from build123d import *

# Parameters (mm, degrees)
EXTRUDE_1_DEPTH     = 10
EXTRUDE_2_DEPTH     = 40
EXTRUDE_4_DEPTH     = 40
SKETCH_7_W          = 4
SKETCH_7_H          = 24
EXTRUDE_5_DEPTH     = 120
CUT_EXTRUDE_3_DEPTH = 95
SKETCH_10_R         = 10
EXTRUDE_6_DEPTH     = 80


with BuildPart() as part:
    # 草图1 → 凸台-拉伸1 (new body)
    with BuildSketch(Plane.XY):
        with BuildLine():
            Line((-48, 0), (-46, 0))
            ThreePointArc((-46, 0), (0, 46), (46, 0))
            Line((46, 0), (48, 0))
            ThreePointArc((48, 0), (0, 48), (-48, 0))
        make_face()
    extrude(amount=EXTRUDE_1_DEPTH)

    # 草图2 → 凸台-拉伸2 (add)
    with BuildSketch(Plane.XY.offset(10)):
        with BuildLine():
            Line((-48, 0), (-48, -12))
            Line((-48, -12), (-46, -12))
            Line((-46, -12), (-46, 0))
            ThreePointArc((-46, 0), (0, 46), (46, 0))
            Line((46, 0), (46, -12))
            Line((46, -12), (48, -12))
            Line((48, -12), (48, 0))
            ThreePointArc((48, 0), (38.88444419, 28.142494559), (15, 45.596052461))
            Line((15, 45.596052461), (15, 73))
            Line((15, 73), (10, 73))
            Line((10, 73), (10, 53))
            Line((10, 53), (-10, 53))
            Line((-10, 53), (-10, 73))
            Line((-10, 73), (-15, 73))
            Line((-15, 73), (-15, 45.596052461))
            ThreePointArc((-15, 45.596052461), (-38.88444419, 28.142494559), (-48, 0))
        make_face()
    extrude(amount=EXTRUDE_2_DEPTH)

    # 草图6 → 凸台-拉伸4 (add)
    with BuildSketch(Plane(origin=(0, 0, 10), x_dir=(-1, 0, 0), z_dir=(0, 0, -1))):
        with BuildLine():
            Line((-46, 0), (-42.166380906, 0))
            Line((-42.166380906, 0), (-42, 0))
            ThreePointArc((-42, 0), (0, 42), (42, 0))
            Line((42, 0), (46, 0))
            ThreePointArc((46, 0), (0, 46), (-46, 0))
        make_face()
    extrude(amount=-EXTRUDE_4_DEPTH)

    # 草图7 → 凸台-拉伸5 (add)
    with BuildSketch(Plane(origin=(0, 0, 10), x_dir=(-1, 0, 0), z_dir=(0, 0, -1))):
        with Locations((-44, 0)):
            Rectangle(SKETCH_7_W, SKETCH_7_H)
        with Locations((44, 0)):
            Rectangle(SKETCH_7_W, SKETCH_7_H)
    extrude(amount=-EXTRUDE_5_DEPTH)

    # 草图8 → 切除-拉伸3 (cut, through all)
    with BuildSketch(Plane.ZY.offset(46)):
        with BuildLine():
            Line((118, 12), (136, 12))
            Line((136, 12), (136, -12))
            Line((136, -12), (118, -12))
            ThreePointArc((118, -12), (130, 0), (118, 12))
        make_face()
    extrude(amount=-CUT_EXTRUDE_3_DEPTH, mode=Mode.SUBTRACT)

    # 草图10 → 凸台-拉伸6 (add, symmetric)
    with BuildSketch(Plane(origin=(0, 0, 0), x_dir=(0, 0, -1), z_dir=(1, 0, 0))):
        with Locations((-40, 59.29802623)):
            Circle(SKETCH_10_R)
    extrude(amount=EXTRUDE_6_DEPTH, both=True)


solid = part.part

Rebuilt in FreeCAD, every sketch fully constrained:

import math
import FreeCAD as App
import Part
import Sketcher

doc = App.newDocument("Part")
body = doc.addObject("PartDesign::Body", "Body")

sketch1 = body.newObject("Sketcher::SketchObject", "Sketch")
sketch1.AttachmentSupport = (doc.getObject("XY_Plane"), [""])
sketch1.MapMode = "FlatFace"
sketch1.addGeometry([
    Part.LineSegment(App.Vector(-48, 0, 0), App.Vector(-46, 0, 0)),
    Part.ArcOfCircle(Part.Circle(App.Vector(0, 0, 0), App.Vector(0, 0, 1), 46), math.radians(0), math.radians(180)),
    Part.LineSegment(App.Vector(46, 0, 0), App.Vector(48, 0, 0)),
    Part.ArcOfCircle(Part.Circle(App.Vector(0, 0, 0), App.Vector(0, 0, 1), 48), math.radians(0), math.radians(180)),
], False)
sketch1.addConstraint([
    Sketcher.Constraint("Coincident", 0, 2, 1, 2),
    Sketcher.Constraint("Coincident", 1, 1, 2, 1),
    Sketcher.Constraint("Coincident", 2, 2, 3, 1),
    Sketcher.Constraint("Coincident", 3, 2, 0, 1),
    Sketcher.Constraint("Horizontal", 0),
    Sketcher.Constraint("Horizontal", 2),
    Sketcher.Constraint("Coincident", 1, 3, -1, 1),
    Sketcher.Constraint("Coincident", 3, 3, -1, 1),
    Sketcher.Constraint("PointOnObject", 0, 2, -1),
    Sketcher.Constraint("PointOnObject", 1, 1, -1),
    Sketcher.Constraint("Radius", 1, 46.0),
    Sketcher.Constraint("Radius", 3, 48.0),
])
pad1 = body.newObject("PartDesign::Pad", "Pad")
pad1.Profile = sketch1
pad1.Length = 10

sketch2 = body.newObject("Sketcher::SketchObject", "Sketch001")
sketch2.AttachmentSupport = (doc.getObject("XY_Plane"), [""])
sketch2.MapMode = "FlatFace"
sketch2.AttachmentOffset = App.Placement(App.Vector(0, 0, 10), App.Rotation())
sketch2.addGeometry([
    Part.LineSegment(App.Vector(-48, 0, 0), App.Vector(-48, -12, 0)),
    Part.LineSegment(App.Vector(-48, -12, 0), App.Vector(-46, -12, 0)),
    Part.LineSegment(App.Vector(-46, -12, 0), App.Vector(-46, 0, 0)),
    Part.ArcOfCircle(Part.Circle(App.Vector(0, 0, 0), App.Vector(0, 0, 1), 46), math.radians(0), math.radians(180)),
    Part.LineSegment(App.Vector(46, 0, 0), App.Vector(46, -12, 0)),
    Part.LineSegment(App.Vector(46, -12, 0), App.Vector(48, -12, 0)),
    Part.LineSegment(App.Vector(48, -12, 0), App.Vector(48, 0, 0)),
    Part.ArcOfCircle(Part.Circle(App.Vector(0, 0, 0), App.Vector(0, 0, 1), 48), math.radians(0), math.radians(72)),
    Part.LineSegment(App.Vector(15, 45.6, 0), App.Vector(15, 73, 0)),
    Part.LineSegment(App.Vector(15, 73, 0), App.Vector(10, 73, 0)),
    Part.LineSegment(App.Vector(10, 73, 0), App.Vector(10, 53, 0)),
    Part.LineSegment(App.Vector(10, 53, 0), App.Vector(-10, 53, 0)),
    Part.LineSegment(App.Vector(-10, 53, 0), App.Vector(-10, 73, 0)),
    Part.LineSegment(App.Vector(-10, 73, 0), App.Vector(-15, 73, 0)),
    Part.LineSegment(App.Vector(-15, 73, 0), App.Vector(-15, 45.6, 0)),
    Part.ArcOfCircle(Part.Circle(App.Vector(0, 0, 0), App.Vector(0, 0, 1), 48), math.radians(108), math.radians(180)),
], False)
sketch2.addConstraint([
    Sketcher.Constraint("Coincident", 0, 2, 1, 1),
    Sketcher.Constraint("Coincident", 1, 2, 2, 1),
    Sketcher.Constraint("Tangent", 2, 2, 3, 2),
    Sketcher.Constraint("Tangent", 3, 1, 4, 1),
    Sketcher.Constraint("Coincident", 4, 2, 5, 1),
    Sketcher.Constraint("Coincident", 5, 2, 6, 1),
    Sketcher.Constraint("Tangent", 6, 2, 7, 1),
    Sketcher.Constraint("Coincident", 7, 2, 8, 1),
    Sketcher.Constraint("Coincident", 8, 2, 9, 1),
    Sketcher.Constraint("Coincident", 9, 2, 10, 1),
    Sketcher.Constraint("Coincident", 10, 2, 11, 1),
    Sketcher.Constraint("Coincident", 11, 2, 12, 1),
    Sketcher.Constraint("Coincident", 12, 2, 13, 1),
    Sketcher.Constraint("Coincident", 13, 2, 14, 1),
    Sketcher.Constraint("Coincident", 14, 2, 15, 1),
    Sketcher.Constraint("Tangent", 15, 2, 0, 1),
    Sketcher.Constraint("Vertical", 0),
    Sketcher.Constraint("Horizontal", 1),
    Sketcher.Constraint("Vertical", 2),
    Sketcher.Constraint("Vertical", 4),
    Sketcher.Constraint("Horizontal", 5),
    Sketcher.Constraint("Vertical", 6),
    Sketcher.Constraint("Vertical", 8),
    Sketcher.Constraint("Horizontal", 9),
    Sketcher.Constraint("Vertical", 10),
    Sketcher.Constraint("Horizontal", 11),
    Sketcher.Constraint("Vertical", 12),
    Sketcher.Constraint("Horizontal", 13),
    Sketcher.Constraint("Vertical", 14),
    Sketcher.Constraint("Coincident", 3, 3, -1, 1),
    Sketcher.Constraint("Coincident", 7, 3, -1, 1),
    Sketcher.Constraint("Coincident", 15, 3, -1, 1),
    Sketcher.Constraint("Equal", 7, 15),
    Sketcher.Constraint("Symmetric", 9, 2, 12, 2, -2),
    Sketcher.Constraint("Horizontal", 1, 2, 4, 2),
    Sketcher.Constraint("Horizontal", 7, 2, 14, 2),
    Sketcher.Constraint("Equal", 11, 10),
    Sketcher.Constraint("Radius", 3, 46.0),
    Sketcher.Constraint("Radius", 7, 48.0),
    Sketcher.Constraint("DistanceX", 9, 2, 9, 1, 5.0),
    Sketcher.Constraint("DistanceX", 11, 2, 11, 1, 20.0),
    Sketcher.Constraint("DistanceY", 0, 2, 0, 1, 12.0),
    Sketcher.Constraint("DistanceY", -1, 1, 8, 2, 73.0),
])
pad2 = body.newObject("PartDesign::Pad", "Pad001")
pad2.Profile = sketch2
pad2.Length = 40

sketch3 = body.newObject("Sketcher::SketchObject", "Sketch002")
sketch3.AttachmentSupport = (doc.getObject("XY_Plane"), [""])
sketch3.MapMode = "FlatFace"
sketch3.AttachmentOffset = App.Placement(App.Vector(0, 0, 10), App.Rotation())
sketch3.addGeometry([
    Part.LineSegment(App.Vector(46, 0, 0), App.Vector(42, 0, 0)),
    Part.ArcOfCircle(Part.Circle(App.Vector(0, 0, 0), App.Vector(0, 0, 1), 42), math.radians(0), math.radians(180)),
    Part.LineSegment(App.Vector(-42, 0, 0), App.Vector(-46, 0, 0)),
    Part.ArcOfCircle(Part.Circle(App.Vector(0, 0, 0), App.Vector(0, 0, 1), 46), math.radians(0), math.radians(180)),
], False)
sketch3.addConstraint([
    Sketcher.Constraint("Coincident", 0, 2, 1, 1),
    Sketcher.Constraint("Coincident", 1, 2, 2, 1),
    Sketcher.Constraint("Coincident", 2, 2, 3, 2),
    Sketcher.Constraint("Coincident", 3, 1, 0, 1),
    Sketcher.Constraint("Horizontal", 0),
    Sketcher.Constraint("Horizontal", 2),
    Sketcher.Constraint("Coincident", 1, 3, -1, 1),
    Sketcher.Constraint("Coincident", 3, 3, -1, 1),
    Sketcher.Constraint("PointOnObject", 0, 2, -1),
    Sketcher.Constraint("PointOnObject", 1, 2, -1),
    Sketcher.Constraint("Radius", 1, 42.0),
    Sketcher.Constraint("Radius", 3, 46.0),
])
pad3 = body.newObject("PartDesign::Pad", "Pad002")
pad3.Profile = sketch3
pad3.Length = 40

sketch4 = body.newObject("Sketcher::SketchObject", "Sketch003")
sketch4.AttachmentSupport = (doc.getObject("XY_Plane"), [""])
sketch4.MapMode = "FlatFace"
sketch4.AttachmentOffset = App.Placement(App.Vector(0, 0, 10), App.Rotation())
sketch4.addGeometry([
    Part.LineSegment(App.Vector(46, 12, 0), App.Vector(46, -12, 0)),
    Part.LineSegment(App.Vector(46, -12, 0), App.Vector(42, -12, 0)),
    Part.LineSegment(App.Vector(42, -12, 0), App.Vector(42, 12, 0)),
    Part.LineSegment(App.Vector(42, 12, 0), App.Vector(46, 12, 0)),
    Part.LineSegment(App.Vector(-42, 12, 0), App.Vector(-42, -12, 0)),
    Part.LineSegment(App.Vector(-42, -12, 0), App.Vector(-46, -12, 0)),
    Part.LineSegment(App.Vector(-46, -12, 0), App.Vector(-46, 12, 0)),
    Part.LineSegment(App.Vector(-46, 12, 0), App.Vector(-42, 12, 0)),
], False)
sketch4.addConstraint([
    Sketcher.Constraint("Coincident", 0, 2, 1, 1),
    Sketcher.Constraint("Coincident", 1, 2, 2, 1),
    Sketcher.Constraint("Coincident", 2, 2, 3, 1),
    Sketcher.Constraint("Coincident", 3, 2, 0, 1),
    Sketcher.Constraint("Coincident", 4, 2, 5, 1),
    Sketcher.Constraint("Coincident", 5, 2, 6, 1),
    Sketcher.Constraint("Coincident", 6, 2, 7, 1),
    Sketcher.Constraint("Coincident", 7, 2, 4, 1),
    Sketcher.Constraint("Vertical", 0),
    Sketcher.Constraint("Horizontal", 1),
    Sketcher.Constraint("Vertical", 2),
    Sketcher.Constraint("Horizontal", 3),
    Sketcher.Constraint("Vertical", 4),
    Sketcher.Constraint("Horizontal", 5),
    Sketcher.Constraint("Vertical", 6),
    Sketcher.Constraint("Horizontal", 7),
    Sketcher.Constraint("Symmetric", 2, 2, 4, 2, -1, 1),
    Sketcher.Constraint("Symmetric", 0, 2, 6, 2, -1, 1),
    Sketcher.Constraint("Horizontal", 1, 2, 4, 2),
    Sketcher.Constraint("DistanceX", 1, 2, 1, 1, 4.0),
    Sketcher.Constraint("DistanceY", 0, 2, 0, 1, 24.0),
    Sketcher.Constraint("DistanceX", -1, 1, 0, 2, 46.0),
])
pad4 = body.newObject("PartDesign::Pad", "Pad003")
pad4.Profile = sketch4
pad4.Length = 120

sketch5 = body.newObject("Sketcher::SketchObject", "Sketch004")
sketch5.AttachmentSupport = (doc.getObject("YZ_Plane"), [""])
sketch5.MapMode = "FlatFace"
sketch5.AttachmentOffset = App.Placement(App.Vector(0, 0, -46), App.Rotation())
sketch5.addGeometry([
    Part.LineSegment(App.Vector(12, 136, 0), App.Vector(12, 118, 0)),
    Part.ArcOfCircle(Part.Circle(App.Vector(0, 118, 0), App.Vector(0, 0, 1), 12), math.radians(0), math.radians(180)),
    Part.LineSegment(App.Vector(-12, 118, 0), App.Vector(-12, 136, 0)),
    Part.LineSegment(App.Vector(-12, 136, 0), App.Vector(12, 136, 0)),
], False)
sketch5.addConstraint([
    Sketcher.Constraint("Tangent", 0, 2, 1, 1),
    Sketcher.Constraint("Tangent", 1, 2, 2, 1),
    Sketcher.Constraint("Coincident", 2, 2, 3, 1),
    Sketcher.Constraint("Coincident", 3, 2, 0, 1),
    Sketcher.Constraint("Vertical", 0),
    Sketcher.Constraint("Vertical", 2),
    Sketcher.Constraint("Horizontal", 3),
    Sketcher.Constraint("PointOnObject", 1, 3, -2),
    Sketcher.Constraint("Radius", 1, 12.0),
    Sketcher.Constraint("DistanceY", 0, 2, 0, 1, 18.0),
    Sketcher.Constraint("DistanceY", -1, 1, 1, 3, 118.0),
])
pocket1 = body.newObject("PartDesign::Pocket", "Pocket")
pocket1.Profile = sketch5
pocket1.Type = "ThroughAll"
pocket1.Reversed = True

sketch6 = body.newObject("Sketcher::SketchObject", "Sketch005")
sketch6.AttachmentSupport = (doc.getObject("YZ_Plane"), [""])
sketch6.MapMode = "FlatFace"
sketch6.addGeometry(Part.Circle(App.Vector(59, 40, 0), App.Vector(0, 0, 1), 10), False)
sketch6.addConstraint([
    Sketcher.Constraint("Diameter", 0, 20.0),
    Sketcher.Constraint("DistanceY", -1, 1, 0, 3, 40.0),
    Sketcher.Constraint("DistanceX", -1, 1, 0, 3, 59.298026),
])
pad5 = body.newObject("PartDesign::Pad", "Pad004")
pad5.Profile = sketch6
pad5.Length = 160
pad5.Midplane = True

doc.recompute()
